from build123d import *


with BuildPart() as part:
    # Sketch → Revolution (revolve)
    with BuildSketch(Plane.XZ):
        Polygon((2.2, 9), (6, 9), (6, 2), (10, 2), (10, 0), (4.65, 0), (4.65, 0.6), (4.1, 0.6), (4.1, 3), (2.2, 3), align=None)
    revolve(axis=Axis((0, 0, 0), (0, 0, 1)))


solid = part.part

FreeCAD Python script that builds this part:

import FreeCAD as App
import Part
import Sketcher
from FreeCAD import Vector


def add_polygon(sketch, points):
    """Adds a closed chain of lines whose ends are joined by coincident constraints."""
    first, n = sketch.GeometryCount, len(points)
    for a, b in zip(points, points[1:] + points[:1]):
        sketch.addGeometry(Part.LineSegment(App.Vector(*a, 0), App.Vector(*b, 0)), False)
    for i in range(n):
        sketch.addConstraint(Sketcher.Constraint("Coincident", first + i, 2, first + (i + 1) % n, 1))

doc = App.newDocument("Part")
body = doc.addObject("PartDesign::Body", "Body")

sketch1 = body.newObject("Sketcher::SketchObject", "Sketch")
sketch1.AttachmentSupport = (doc.getObject("XZ_Plane"), [""])
sketch1.MapMode = "FlatFace"
add_polygon(sketch1, [(6, 9), (2.2, 9), (2.2, 3), (4.1, 3), (4.1, 0.6), (4.7, 0.6), (4.7, 0), (10, 0), (10, 2), (6, 2)])
sketch1.addConstraint(Sketcher.Constraint("Horizontal", 0))
sketch1.addConstraint(Sketcher.Constraint("Vertical", 1))
sketch1.addConstraint(Sketcher.Constraint("Horizontal", 2))
sketch1.addConstraint(Sketcher.Constraint("Vertical", 3))
sketch1.addConstraint(Sketcher.Constraint("Horizontal", 4))
sketch1.addConstraint(Sketcher.Constraint("Vertical", 5))
sketch1.addConstraint(Sketcher.Constraint("Horizontal", 6))
sketch1.addConstraint(Sketcher.Constraint("Vertical", 7))
sketch1.addConstraint(Sketcher.Constraint("Horizontal", 8))
sketch1.addConstraint(Sketcher.Constraint("Vertical", 9))
sketch1.addConstraint(Sketcher.Constraint("PointOnObject", 5, 2, -1))
sketch1.addConstraint(Sketcher.Constraint("DistanceX", 8, 2, 8, 1, 4.0))
sketch1.addConstraint(Sketcher.Constraint("DistanceY", 1, 2, 1, 1, 6.0))
sketch1.addConstraint(Sketcher.Constraint("DistanceY", 7, 1, 7, 2, 2.0))
sketch1.addConstraint(Sketcher.Constraint("DistanceY", 9, 1, 9, 2, 7.0))
sketch1.addConstraint(Sketcher.Constraint("DistanceX", 0, 2, 0, 1, 3.8))
sketch1.addConstraint(Sketcher.Constraint("DistanceX", 2, 1, 2, 2, 1.9))
sketch1.addConstraint(Sketcher.Constraint("DistanceY", 3, 2, 3, 1, 2.4))
sketch1.addConstraint(Sketcher.Constraint("DistanceX", -1, 1, 6, 2, 10.0))
sketch1.addConstraint(Sketcher.Constraint("DistanceX", 4, 1, 4, 2, 0.55))
revolution = body.newObject("PartDesign::Revolution", "Revolution")
revolution.Profile = sketch1
revolution.ReferenceAxis = (sketch1, ["V_Axis"])
revolution.Angle = 360

doc.recompute()
